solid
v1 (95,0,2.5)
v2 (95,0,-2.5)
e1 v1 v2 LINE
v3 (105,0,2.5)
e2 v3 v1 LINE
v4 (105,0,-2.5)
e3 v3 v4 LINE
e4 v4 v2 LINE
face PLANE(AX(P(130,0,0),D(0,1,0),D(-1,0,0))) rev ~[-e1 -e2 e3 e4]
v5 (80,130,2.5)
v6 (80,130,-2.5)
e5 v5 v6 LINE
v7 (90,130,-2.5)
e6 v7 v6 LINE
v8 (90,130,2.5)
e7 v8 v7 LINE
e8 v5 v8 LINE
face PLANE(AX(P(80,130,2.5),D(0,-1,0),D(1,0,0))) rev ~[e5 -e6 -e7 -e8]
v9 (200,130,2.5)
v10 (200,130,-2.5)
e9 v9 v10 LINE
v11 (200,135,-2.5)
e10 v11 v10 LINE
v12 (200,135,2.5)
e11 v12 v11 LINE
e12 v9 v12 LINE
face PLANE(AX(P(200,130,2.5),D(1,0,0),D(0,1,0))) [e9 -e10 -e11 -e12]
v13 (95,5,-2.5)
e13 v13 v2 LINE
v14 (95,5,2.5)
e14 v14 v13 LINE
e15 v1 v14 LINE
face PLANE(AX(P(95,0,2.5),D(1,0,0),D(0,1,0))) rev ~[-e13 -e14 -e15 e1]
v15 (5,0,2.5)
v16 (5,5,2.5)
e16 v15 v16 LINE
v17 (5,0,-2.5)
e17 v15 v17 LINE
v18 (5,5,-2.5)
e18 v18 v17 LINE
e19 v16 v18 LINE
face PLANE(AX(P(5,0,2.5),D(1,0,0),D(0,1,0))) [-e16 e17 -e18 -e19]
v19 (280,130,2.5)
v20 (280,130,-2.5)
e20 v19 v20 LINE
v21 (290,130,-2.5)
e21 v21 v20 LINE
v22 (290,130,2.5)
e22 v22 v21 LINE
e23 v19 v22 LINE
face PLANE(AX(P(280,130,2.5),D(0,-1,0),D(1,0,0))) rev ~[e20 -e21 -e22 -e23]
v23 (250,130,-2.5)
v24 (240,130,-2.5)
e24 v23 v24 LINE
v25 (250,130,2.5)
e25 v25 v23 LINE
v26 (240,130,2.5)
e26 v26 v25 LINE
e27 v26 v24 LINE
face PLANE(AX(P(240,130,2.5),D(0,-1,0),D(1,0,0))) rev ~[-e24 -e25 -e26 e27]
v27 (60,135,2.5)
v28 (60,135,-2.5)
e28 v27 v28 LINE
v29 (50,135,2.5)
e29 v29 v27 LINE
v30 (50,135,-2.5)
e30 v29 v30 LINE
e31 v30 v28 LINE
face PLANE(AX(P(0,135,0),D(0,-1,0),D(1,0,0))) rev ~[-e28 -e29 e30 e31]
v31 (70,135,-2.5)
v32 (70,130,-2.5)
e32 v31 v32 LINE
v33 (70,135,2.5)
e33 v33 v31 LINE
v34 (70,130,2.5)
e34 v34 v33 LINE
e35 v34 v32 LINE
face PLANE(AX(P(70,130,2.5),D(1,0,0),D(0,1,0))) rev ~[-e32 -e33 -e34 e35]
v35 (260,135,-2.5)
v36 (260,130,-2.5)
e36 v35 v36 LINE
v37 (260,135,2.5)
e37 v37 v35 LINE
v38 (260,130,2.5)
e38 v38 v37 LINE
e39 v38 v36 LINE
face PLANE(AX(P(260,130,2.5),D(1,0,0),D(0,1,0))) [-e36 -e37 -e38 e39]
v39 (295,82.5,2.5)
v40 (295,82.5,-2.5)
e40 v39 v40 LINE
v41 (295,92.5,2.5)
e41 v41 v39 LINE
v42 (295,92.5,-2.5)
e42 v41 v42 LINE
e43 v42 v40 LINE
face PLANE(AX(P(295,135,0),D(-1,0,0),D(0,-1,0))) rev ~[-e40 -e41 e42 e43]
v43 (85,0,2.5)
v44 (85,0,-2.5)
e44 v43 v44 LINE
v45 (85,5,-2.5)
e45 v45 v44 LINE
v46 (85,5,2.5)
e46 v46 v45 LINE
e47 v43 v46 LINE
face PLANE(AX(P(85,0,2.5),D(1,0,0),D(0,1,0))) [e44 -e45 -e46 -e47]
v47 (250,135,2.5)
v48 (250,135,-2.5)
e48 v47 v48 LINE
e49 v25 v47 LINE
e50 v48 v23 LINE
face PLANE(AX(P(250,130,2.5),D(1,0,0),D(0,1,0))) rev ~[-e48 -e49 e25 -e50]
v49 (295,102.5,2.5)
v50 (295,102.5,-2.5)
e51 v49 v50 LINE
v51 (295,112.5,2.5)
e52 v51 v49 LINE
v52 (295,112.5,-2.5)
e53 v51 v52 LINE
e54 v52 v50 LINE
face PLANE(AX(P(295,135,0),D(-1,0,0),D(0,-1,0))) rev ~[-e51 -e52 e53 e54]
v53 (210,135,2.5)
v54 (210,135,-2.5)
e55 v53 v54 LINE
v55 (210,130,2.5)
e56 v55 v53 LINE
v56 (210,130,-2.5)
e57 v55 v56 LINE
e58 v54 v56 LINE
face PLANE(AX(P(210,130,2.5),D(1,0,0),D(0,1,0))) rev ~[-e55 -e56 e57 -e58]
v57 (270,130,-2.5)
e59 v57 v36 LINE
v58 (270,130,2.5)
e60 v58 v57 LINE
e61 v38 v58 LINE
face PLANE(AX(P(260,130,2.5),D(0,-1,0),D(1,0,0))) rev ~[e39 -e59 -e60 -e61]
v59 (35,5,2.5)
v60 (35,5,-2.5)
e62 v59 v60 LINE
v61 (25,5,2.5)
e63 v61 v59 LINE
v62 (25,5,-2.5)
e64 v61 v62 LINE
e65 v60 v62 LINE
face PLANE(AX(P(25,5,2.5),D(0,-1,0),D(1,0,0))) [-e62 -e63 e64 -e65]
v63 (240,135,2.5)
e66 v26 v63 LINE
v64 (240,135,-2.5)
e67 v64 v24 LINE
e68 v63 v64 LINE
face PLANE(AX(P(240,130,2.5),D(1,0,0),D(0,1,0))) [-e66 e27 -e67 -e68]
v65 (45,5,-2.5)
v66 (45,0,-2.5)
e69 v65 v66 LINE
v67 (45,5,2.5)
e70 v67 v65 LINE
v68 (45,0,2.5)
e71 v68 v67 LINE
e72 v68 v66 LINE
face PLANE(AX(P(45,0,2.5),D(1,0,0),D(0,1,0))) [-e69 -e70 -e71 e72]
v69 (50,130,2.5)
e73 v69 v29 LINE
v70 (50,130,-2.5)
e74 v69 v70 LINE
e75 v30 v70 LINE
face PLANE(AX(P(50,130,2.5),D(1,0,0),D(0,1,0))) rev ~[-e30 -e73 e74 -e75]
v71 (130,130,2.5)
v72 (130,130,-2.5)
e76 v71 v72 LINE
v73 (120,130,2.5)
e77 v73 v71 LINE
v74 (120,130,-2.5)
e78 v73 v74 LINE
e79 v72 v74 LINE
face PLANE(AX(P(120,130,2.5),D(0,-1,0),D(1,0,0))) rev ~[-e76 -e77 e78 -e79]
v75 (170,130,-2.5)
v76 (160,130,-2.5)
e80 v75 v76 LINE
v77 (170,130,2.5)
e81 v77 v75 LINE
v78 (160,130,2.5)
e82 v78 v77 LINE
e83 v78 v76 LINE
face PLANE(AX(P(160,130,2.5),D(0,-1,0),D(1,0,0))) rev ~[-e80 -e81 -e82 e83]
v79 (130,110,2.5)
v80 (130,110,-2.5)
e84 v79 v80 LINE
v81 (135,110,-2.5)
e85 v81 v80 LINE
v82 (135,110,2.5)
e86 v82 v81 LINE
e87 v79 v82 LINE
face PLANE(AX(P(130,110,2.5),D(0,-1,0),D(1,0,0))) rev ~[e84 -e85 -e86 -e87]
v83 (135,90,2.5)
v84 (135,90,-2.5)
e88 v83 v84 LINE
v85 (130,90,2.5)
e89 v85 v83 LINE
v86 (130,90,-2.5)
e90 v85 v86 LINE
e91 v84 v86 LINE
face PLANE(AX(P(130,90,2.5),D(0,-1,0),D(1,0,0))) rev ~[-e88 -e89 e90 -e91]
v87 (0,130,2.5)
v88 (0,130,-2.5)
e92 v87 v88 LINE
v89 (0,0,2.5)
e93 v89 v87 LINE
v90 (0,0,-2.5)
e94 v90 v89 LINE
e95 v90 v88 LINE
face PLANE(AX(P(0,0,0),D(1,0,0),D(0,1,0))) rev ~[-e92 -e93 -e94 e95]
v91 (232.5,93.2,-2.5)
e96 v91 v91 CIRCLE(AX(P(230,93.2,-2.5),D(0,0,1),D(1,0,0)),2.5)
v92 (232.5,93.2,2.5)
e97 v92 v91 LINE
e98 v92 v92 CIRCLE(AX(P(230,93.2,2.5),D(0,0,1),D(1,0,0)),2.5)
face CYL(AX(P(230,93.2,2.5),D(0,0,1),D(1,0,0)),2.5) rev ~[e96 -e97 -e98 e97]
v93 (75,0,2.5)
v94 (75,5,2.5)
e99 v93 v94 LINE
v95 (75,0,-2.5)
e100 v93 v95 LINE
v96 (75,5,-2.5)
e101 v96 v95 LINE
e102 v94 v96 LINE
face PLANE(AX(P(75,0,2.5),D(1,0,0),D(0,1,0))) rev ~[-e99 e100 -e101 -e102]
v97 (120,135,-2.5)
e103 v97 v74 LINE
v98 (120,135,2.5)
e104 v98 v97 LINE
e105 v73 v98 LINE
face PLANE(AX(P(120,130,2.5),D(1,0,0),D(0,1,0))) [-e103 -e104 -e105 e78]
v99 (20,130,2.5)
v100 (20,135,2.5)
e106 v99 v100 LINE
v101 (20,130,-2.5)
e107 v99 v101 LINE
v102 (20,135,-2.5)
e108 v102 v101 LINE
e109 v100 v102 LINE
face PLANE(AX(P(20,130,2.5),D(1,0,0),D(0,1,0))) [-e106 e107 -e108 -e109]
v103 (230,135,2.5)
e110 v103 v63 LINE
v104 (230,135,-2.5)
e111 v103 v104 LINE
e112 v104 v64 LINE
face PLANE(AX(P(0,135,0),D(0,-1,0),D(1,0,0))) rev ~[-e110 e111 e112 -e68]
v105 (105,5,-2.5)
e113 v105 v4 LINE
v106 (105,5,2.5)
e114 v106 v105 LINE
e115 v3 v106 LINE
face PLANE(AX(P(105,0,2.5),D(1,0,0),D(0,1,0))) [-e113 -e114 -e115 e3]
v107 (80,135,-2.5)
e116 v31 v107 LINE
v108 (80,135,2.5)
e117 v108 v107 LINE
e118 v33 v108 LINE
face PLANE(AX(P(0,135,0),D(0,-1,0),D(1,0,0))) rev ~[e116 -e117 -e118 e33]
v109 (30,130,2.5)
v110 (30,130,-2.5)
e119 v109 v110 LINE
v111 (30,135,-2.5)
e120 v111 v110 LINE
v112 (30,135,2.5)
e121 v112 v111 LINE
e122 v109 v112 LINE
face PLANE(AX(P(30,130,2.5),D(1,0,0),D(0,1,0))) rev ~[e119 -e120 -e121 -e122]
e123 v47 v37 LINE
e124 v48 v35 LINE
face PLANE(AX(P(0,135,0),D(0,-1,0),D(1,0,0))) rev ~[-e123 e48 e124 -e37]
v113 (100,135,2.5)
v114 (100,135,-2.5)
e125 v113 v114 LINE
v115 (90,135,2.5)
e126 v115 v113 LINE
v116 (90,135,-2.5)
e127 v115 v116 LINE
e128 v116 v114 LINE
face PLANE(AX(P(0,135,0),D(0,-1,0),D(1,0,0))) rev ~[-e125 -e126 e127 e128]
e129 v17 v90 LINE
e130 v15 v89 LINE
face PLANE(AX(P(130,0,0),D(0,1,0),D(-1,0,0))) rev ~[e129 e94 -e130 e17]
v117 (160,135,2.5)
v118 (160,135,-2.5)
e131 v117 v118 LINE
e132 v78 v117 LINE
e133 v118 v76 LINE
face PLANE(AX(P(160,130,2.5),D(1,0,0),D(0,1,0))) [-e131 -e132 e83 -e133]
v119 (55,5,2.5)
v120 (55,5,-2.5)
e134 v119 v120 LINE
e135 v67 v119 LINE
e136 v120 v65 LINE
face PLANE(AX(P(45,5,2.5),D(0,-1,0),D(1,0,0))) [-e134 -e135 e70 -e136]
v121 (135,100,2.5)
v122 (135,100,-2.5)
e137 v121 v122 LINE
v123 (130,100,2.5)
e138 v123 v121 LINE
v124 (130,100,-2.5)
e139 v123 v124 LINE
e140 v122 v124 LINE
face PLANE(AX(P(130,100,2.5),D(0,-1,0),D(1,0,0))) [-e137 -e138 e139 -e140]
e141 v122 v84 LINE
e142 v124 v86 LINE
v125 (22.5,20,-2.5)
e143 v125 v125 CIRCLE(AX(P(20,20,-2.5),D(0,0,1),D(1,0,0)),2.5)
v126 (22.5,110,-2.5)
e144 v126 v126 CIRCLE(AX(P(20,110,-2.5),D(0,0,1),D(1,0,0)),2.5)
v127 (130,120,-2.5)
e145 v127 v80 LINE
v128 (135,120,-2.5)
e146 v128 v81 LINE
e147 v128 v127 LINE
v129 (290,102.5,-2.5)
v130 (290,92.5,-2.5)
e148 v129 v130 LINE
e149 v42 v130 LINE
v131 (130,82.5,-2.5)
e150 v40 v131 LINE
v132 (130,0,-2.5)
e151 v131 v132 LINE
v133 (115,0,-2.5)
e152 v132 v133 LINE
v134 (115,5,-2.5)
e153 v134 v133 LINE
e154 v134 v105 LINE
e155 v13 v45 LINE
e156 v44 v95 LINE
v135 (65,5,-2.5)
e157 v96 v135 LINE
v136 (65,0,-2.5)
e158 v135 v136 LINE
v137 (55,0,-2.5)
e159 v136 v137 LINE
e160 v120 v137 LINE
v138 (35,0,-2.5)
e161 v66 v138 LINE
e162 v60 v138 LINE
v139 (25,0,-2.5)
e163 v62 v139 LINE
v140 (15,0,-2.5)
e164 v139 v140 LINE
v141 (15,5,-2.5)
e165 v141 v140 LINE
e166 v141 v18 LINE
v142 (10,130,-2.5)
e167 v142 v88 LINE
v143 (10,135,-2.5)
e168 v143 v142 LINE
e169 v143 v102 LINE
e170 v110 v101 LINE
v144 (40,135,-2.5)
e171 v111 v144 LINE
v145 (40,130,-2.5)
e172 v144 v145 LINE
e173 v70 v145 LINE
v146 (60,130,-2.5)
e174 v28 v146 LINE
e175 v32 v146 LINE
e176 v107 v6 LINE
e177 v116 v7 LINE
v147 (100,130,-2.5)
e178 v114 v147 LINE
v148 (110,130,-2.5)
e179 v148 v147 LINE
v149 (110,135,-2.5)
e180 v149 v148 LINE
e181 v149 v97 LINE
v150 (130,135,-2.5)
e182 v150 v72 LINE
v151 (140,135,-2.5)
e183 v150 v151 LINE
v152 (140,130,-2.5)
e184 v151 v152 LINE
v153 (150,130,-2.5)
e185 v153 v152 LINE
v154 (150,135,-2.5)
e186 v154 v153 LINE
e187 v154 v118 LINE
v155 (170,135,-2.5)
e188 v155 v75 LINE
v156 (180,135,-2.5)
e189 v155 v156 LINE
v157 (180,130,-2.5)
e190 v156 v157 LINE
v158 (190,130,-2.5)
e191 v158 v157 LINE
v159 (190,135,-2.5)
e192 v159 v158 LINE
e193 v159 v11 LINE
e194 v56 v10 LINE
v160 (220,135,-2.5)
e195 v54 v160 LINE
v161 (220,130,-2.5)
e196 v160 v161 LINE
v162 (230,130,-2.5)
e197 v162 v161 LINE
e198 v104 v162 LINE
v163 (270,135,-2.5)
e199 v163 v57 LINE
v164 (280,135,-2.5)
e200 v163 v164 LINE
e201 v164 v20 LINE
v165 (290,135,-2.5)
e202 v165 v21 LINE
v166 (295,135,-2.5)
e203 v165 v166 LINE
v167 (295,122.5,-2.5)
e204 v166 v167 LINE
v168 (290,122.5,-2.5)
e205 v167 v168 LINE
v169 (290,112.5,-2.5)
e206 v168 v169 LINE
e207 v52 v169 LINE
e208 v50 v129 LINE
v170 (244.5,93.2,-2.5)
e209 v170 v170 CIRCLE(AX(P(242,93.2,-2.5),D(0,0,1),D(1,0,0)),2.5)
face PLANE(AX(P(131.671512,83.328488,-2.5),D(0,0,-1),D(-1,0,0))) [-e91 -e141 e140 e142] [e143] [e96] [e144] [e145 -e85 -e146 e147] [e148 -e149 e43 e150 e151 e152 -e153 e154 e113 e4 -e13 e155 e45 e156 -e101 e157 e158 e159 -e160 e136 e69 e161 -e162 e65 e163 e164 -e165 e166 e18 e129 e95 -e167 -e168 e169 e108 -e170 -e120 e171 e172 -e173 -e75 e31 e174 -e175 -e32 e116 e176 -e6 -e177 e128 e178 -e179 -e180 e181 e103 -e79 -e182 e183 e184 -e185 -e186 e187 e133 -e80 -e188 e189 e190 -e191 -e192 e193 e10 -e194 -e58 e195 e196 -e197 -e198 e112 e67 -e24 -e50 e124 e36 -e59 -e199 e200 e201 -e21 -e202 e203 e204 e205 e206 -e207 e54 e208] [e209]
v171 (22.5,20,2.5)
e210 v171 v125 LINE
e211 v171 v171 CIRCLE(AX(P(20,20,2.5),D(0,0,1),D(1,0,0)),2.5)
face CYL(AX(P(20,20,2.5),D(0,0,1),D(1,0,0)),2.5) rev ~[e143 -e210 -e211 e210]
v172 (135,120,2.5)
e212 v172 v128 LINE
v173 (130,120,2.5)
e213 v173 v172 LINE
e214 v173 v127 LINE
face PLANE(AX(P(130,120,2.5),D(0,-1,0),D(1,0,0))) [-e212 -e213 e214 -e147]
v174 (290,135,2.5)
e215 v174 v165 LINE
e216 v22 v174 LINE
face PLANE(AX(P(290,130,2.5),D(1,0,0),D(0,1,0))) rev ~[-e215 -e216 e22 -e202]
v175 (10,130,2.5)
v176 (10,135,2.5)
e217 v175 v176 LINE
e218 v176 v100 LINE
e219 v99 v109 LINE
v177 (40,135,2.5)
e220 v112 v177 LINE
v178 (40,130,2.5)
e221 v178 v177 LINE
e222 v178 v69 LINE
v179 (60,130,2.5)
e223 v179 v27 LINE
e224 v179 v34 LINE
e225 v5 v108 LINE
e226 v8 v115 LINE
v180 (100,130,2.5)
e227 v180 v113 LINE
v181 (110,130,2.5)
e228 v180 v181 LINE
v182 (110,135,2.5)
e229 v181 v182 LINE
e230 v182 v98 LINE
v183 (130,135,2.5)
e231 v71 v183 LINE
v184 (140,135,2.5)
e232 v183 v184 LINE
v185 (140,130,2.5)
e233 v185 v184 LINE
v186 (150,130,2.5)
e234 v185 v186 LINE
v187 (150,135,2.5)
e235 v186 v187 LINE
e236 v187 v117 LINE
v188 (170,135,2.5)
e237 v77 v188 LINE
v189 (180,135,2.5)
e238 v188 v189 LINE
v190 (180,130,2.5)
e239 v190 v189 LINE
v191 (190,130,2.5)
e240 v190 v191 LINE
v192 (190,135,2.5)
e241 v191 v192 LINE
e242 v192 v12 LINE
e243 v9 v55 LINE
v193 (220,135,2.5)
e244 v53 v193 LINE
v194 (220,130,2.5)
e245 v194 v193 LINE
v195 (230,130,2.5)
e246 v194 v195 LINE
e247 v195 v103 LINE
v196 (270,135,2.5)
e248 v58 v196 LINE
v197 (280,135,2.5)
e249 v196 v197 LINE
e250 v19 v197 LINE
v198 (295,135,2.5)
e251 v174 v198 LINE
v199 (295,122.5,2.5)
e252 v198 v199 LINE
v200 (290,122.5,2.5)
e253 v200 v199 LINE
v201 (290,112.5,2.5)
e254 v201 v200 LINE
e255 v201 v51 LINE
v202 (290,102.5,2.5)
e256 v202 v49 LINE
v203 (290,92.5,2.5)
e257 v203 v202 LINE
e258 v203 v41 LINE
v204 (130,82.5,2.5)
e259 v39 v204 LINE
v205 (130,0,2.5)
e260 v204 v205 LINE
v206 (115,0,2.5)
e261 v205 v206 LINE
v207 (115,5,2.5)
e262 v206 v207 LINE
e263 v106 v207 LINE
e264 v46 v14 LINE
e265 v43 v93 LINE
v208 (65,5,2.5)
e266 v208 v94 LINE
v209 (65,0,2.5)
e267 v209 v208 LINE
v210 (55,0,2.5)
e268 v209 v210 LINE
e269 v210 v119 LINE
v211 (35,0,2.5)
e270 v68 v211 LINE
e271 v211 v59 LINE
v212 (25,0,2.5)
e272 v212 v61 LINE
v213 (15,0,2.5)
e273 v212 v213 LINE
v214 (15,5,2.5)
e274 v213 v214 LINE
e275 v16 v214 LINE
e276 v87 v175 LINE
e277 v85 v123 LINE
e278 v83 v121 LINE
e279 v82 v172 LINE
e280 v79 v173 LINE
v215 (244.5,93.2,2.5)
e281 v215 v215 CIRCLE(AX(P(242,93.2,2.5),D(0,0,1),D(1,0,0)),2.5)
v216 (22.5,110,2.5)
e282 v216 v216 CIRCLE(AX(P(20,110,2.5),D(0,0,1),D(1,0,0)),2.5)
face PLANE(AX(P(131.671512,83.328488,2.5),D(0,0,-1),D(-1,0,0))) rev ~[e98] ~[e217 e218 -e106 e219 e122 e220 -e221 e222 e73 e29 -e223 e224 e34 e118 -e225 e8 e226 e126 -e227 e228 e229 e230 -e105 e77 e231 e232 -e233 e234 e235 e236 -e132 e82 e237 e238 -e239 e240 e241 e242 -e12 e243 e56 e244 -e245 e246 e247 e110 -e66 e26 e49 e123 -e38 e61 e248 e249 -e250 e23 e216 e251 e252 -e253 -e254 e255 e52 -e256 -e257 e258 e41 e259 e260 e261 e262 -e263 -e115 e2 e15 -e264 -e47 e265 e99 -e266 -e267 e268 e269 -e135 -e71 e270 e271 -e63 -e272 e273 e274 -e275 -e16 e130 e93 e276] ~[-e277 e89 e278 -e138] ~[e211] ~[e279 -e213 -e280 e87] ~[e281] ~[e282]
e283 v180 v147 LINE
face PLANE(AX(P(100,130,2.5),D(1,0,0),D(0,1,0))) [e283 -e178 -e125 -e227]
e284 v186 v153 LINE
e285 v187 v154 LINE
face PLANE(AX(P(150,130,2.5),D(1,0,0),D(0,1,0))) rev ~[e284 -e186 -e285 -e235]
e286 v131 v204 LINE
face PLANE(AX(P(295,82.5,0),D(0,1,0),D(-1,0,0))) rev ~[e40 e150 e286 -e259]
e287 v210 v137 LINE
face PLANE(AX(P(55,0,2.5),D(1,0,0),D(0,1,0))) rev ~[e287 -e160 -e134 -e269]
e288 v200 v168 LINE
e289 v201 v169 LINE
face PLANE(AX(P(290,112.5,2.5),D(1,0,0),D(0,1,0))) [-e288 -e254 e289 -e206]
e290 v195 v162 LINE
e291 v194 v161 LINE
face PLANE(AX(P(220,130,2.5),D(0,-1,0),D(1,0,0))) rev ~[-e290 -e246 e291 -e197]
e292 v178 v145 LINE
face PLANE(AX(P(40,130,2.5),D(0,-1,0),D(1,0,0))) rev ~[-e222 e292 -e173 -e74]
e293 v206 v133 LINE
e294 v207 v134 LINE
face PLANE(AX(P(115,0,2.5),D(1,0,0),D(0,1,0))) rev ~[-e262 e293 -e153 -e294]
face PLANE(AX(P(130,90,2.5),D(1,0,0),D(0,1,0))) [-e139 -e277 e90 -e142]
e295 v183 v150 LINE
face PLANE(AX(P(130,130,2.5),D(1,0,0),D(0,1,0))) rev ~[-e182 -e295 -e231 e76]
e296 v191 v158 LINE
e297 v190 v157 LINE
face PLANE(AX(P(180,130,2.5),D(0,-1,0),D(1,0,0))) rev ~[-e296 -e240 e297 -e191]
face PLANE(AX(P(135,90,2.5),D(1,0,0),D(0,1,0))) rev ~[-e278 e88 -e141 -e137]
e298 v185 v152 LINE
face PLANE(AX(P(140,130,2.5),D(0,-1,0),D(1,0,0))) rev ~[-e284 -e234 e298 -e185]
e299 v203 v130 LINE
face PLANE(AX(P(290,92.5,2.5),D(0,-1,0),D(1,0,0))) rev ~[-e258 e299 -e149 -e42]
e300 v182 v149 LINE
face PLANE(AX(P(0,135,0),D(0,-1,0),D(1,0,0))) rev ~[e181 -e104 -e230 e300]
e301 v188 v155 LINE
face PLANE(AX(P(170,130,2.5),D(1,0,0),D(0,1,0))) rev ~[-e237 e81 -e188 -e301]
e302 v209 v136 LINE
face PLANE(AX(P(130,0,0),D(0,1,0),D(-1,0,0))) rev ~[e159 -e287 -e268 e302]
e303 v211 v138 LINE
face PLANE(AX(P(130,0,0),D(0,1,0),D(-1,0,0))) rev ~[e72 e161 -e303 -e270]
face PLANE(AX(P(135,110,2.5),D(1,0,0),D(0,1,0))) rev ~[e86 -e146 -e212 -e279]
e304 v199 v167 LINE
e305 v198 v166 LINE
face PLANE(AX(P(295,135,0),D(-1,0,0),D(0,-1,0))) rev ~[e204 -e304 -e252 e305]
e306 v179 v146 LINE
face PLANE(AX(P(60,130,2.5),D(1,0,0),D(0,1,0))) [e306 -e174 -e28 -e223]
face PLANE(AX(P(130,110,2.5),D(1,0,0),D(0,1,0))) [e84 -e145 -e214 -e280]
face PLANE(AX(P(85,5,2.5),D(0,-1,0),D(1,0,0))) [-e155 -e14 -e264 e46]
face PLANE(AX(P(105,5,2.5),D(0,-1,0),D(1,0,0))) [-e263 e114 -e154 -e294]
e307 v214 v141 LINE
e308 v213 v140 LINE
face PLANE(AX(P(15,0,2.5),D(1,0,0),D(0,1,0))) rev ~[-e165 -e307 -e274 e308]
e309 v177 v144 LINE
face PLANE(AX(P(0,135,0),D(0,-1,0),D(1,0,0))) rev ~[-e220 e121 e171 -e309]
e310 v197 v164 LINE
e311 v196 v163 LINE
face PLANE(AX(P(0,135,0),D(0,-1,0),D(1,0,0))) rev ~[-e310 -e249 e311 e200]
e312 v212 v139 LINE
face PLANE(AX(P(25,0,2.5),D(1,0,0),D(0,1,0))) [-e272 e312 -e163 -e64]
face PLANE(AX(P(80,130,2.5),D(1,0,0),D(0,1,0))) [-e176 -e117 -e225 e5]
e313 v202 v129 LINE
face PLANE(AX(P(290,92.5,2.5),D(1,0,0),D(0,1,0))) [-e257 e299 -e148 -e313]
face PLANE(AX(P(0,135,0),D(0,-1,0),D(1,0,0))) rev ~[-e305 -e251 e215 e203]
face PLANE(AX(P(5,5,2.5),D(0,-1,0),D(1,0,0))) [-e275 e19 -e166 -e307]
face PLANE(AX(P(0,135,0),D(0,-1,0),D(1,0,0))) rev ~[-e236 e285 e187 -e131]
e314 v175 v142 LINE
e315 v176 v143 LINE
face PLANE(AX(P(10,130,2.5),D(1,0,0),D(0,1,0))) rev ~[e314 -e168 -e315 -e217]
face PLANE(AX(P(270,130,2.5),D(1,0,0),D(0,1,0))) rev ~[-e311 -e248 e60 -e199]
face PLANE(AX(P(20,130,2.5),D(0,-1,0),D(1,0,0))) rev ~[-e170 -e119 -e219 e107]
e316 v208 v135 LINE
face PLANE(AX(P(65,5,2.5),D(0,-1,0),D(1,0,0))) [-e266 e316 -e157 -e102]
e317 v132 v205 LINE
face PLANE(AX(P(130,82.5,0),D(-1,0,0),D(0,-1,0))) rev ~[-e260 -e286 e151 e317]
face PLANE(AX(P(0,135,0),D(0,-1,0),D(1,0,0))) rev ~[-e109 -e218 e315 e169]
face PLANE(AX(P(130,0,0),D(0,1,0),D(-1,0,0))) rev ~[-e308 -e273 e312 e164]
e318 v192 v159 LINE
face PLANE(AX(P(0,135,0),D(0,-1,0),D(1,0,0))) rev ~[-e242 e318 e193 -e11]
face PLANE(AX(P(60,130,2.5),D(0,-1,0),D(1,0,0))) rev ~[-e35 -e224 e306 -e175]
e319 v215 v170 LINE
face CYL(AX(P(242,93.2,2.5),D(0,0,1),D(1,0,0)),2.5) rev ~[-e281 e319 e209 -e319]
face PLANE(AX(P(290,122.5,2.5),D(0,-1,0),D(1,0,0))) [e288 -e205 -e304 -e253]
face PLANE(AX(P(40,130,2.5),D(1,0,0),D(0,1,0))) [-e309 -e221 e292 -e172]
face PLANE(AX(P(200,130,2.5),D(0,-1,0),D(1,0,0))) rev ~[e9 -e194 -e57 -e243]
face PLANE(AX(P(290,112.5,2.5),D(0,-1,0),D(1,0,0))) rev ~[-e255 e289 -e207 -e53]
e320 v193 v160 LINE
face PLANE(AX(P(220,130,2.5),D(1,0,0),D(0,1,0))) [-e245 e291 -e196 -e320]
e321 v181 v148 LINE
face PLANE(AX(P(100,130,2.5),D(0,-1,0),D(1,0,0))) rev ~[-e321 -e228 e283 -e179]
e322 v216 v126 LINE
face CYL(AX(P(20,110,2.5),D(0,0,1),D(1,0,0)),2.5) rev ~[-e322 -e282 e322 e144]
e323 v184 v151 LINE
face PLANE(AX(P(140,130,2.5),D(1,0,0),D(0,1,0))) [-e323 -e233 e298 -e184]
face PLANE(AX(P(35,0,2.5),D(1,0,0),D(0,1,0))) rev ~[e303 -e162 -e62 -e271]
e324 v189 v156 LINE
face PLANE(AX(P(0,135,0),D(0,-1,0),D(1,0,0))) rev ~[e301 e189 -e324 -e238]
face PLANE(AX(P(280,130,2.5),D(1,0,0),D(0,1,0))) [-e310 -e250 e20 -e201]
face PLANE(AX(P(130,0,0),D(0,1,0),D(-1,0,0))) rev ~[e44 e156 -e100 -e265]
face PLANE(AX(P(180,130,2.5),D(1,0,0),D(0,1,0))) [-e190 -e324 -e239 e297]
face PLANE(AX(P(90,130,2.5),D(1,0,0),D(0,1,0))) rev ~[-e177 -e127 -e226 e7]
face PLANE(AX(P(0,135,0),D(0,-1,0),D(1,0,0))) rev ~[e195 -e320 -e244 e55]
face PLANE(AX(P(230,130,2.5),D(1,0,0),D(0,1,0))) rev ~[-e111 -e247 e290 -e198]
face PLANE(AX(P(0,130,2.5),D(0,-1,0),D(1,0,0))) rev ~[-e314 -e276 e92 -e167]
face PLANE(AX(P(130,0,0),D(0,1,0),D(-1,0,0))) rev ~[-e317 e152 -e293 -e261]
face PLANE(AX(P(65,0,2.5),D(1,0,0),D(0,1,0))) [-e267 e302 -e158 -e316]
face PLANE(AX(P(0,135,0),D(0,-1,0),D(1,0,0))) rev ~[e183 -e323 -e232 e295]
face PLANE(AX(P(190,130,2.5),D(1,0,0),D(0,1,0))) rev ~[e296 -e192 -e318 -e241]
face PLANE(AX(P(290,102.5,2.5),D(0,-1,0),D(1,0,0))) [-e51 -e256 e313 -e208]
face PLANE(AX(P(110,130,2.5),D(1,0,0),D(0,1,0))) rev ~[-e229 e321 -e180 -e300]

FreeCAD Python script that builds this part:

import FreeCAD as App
import Part
import Sketcher
Q = App.Units.Quantity

doc = App.newDocument("Part")
body = doc.addObject("PartDesign::Body", "Body")

# Sketch on XY plane
sketch1 = body.newObject("Sketcher::SketchObject", "Sketch")
sketch1.AttachmentSupport = (doc.getObject("XY_Plane"), [""])
sketch1.MapMode = "FlatFace"
sketch1.addGeometry([
    Part.LineSegment(App.Vector(0, 135, 0), App.Vector(0, 0, 0)),  # 0
    Part.LineSegment(App.Vector(0, 0, 0), App.Vector(130, 0, 0)),  # 1
    Part.LineSegment(App.Vector(130, 0, 0), App.Vector(130, 82, 0)),  # 2
    Part.LineSegment(App.Vector(130, 82, 0), App.Vector(295, 82, 0)),  # 3
    Part.LineSegment(App.Vector(295, 82, 0), App.Vector(295, 135, 0)),  # 4
    Part.LineSegment(App.Vector(295, 135, 0), App.Vector(0, 135, 0)),  # 5
], False)
sketch1.addConstraint([
    Sketcher.Constraint("Coincident", 0, 2, 1, 1),
    Sketcher.Constraint("Coincident", 1, 2, 2, 1),
    Sketcher.Constraint("Coincident", 2, 2, 3, 1),
    Sketcher.Constraint("Coincident", 3, 2, 4, 1),
    Sketcher.Constraint("Coincident", 4, 2, 5, 1),
    Sketcher.Constraint("Coincident", 5, 2, 0, 1),
    Sketcher.Constraint("Vertical", 0),
    Sketcher.Constraint("Horizontal", 1),
    Sketcher.Constraint("Vertical", 2),
    Sketcher.Constraint("Horizontal", 3),
    Sketcher.Constraint("Vertical", 4),
    Sketcher.Constraint("Horizontal", 5),
    Sketcher.Constraint("Coincident", 0, 2, -1, 1),
    Sketcher.Constraint("DistanceX", 1, 1, 1, 2, Q("130 mm")),
    Sketcher.Constraint("DistanceX", 3, 1, 3, 2, Q("165 mm")),
    Sketcher.Constraint("DistanceY", 0, 2, 0, 1, Q("135 mm")),
    Sketcher.Constraint("DistanceY", 2, 1, 2, 2, Q("82.5 mm")),
])
pad1 = body.newObject("PartDesign::Pad", "Pad")
pad1.Profile = sketch1
pad1.Length = 5
pad1.Midplane = True

# Sketch on XY plane
sketch2 = body.newObject("Sketcher::SketchObject", "Sketch001")
sketch2.AttachmentSupport = (doc.getObject("XY_Plane"), [""])
sketch2.MapMode = "FlatFace"
sketch2.AttachmentOffset = App.Placement(App.Vector(0, 0, 2.5), App.Rotation())
sketch2.addGeometry([
    Part.LineSegment(App.Vector(290, 102, 0), App.Vector(290, 92, 0)),  # 0
    Part.LineSegment(App.Vector(290, 92, 0), App.Vector(295, 92, 0)),  # 1
    Part.LineSegment(App.Vector(295, 92, 0), App.Vector(295, 102, 0)),  # 2
    Part.LineSegment(App.Vector(295, 102, 0), App.Vector(290, 102, 0)),  # 3
    Part.LineSegment(App.Vector(290, 122, 0), App.Vector(290, 112, 0)),  # 4
    Part.LineSegment(App.Vector(290, 112, 0), App.Vector(295, 112, 0)),  # 5
    Part.LineSegment(App.Vector(295, 112, 0), App.Vector(295, 122, 0)),  # 6
    Part.LineSegment(App.Vector(295, 122, 0), App.Vector(290, 122, 0)),  # 7
], False)
sketch2.addConstraint([
    Sketcher.Constraint("Coincident", 0, 2, 1, 1),
    Sketcher.Constraint("Coincident", 1, 2, 2, 1),
    Sketcher.Constraint("Coincident", 2, 2, 3, 1),
    Sketcher.Constraint("Coincident", 3, 2, 0, 1),
    Sketcher.Constraint("Coincident", 4, 2, 5, 1),
    Sketcher.Constraint("Coincident", 5, 2, 6, 1),
    Sketcher.Constraint("Coincident", 6, 2, 7, 1),
    Sketcher.Constraint("Coincident", 7, 2, 4, 1),
    Sketcher.Constraint("Vertical", 0),
    Sketcher.Constraint("Horizontal", 1),
    Sketcher.Constraint("Vertical", 2),
    Sketcher.Constraint("Horizontal", 3),
    Sketcher.Constraint("Vertical", 4),
    Sketcher.Constraint("Horizontal", 5),
    Sketcher.Constraint("Vertical", 6),
    Sketcher.Constraint("Horizontal", 7),
    Sketcher.Constraint("Vertical", 3, 2, 4, 2),
    Sketcher.Constraint("Vertical", 2, 2, 5, 2),
    Sketcher.Constraint("Equal", 2, 4),
    Sketcher.Constraint("DistanceX", 1, 1, 1, 2, Q("5 mm")),
    Sketcher.Constraint("DistanceY", 0, 2, 0, 1, Q("10 mm")),
    Sketcher.Constraint("DistanceX", -1, 1, 0, 2, Q("290 mm")),
    Sketcher.Constraint("DistanceY", 3, 2, 4, 2, Q("10 mm")),
    Sketcher.Constraint("DistanceY", -1, 1, 0, 2, Q("92.5 mm")),
])
pocket1 = body.newObject("PartDesign::Pocket", "Pocket")
pocket1.Profile = sketch2
pocket1.Type = "ThroughAll"

# Sketch on XY plane
sketch3 = body.newObject("Sketcher::SketchObject", "Sketch002")
sketch3.AttachmentSupport = (doc.getObject("XY_Plane"), [""])
sketch3.MapMode = "FlatFace"
sketch3.AttachmentOffset = App.Placement(App.Vector(0, 0, 2.5), App.Rotation())
sketch3.addGeometry([
    Part.LineSegment(App.Vector(0, 135, 0), App.Vector(0, 130, 0)),  # 0
    Part.LineSegment(App.Vector(0, 130, 0), App.Vector(10, 130, 0)),  # 1
    Part.LineSegment(App.Vector(10, 130, 0), App.Vector(10, 135, 0)),  # 2
    Part.LineSegment(App.Vector(10, 135, 0), App.Vector(0, 135, 0)),  # 3
    Part.LineSegment(App.Vector(20, 135, 0), App.Vector(20, 130, 0)),  # 4
    Part.LineSegment(App.Vector(20, 130, 0), App.Vector(30, 130, 0)),  # 5
    Part.LineSegment(App.Vector(30, 130, 0), App.Vector(30, 135, 0)),  # 6
    Part.LineSegment(App.Vector(30, 135, 0), App.Vector(20, 135, 0)),  # 7
    Part.LineSegment(App.Vector(40, 135, 0), App.Vector(40, 130, 0)),  # 8
    Part.LineSegment(App.Vector(40, 130, 0), App.Vector(50, 130, 0)),  # 9
    Part.LineSegment(App.Vector(50, 130, 0), App.Vector(50, 135, 0)),  # 10
    Part.LineSegment(App.Vector(50, 135, 0), App.Vector(40, 135, 0)),  # 11
    Part.LineSegment(App.Vector(60, 135, 0), App.Vector(60, 130, 0)),  # 12
    Part.LineSegment(App.Vector(60, 130, 0), App.Vector(70, 130, 0)),  # 13
    Part.LineSegment(App.Vector(70, 130, 0), App.Vector(70, 135, 0)),  # 14
    Part.LineSegment(App.Vector(70, 135, 0), App.Vector(60, 135, 0)),  # 15
    Part.LineSegment(App.Vector(80, 135, 0), App.Vector(80, 130, 0)),  # 16
    Part.LineSegment(App.Vector(80, 130, 0), App.Vector(90, 130, 0)),  # 17
    Part.LineSegment(App.Vector(90, 130, 0), App.Vector(90, 135, 0)),  # 18
    Part.LineSegment(App.Vector(90, 135, 0), App.Vector(80, 135, 0)),  # 19
    Part.LineSegment(App.Vector(100, 135, 0), App.Vector(100, 130, 0)),  # 20
    Part.LineSegment(App.Vector(100, 130, 0), App.Vector(110, 130, 0)),  # 21
    Part.LineSegment(App.Vector(110, 130, 0), App.Vector(110, 135, 0)),  # 22
    Part.LineSegment(App.Vector(110, 135, 0), App.Vector(100, 135, 0)),  # 23
    Part.LineSegment(App.Vector(120, 135, 0), App.Vector(120, 130, 0)),  # 24
    Part.LineSegment(App.Vector(120, 130, 0), App.Vector(130, 130, 0)),  # 25
    Part.LineSegment(App.Vector(130, 130, 0), App.Vector(130, 135, 0)),  # 26
    Part.LineSegment(App.Vector(130, 135, 0), App.Vector(120, 135, 0)),  # 27
    Part.LineSegment(App.Vector(140, 135, 0), App.Vector(140, 130, 0)),  # 28
    Part.LineSegment(App.Vector(140, 130, 0), App.Vector(150, 130, 0)),  # 29
    Part.LineSegment(App.Vector(150, 130, 0), App.Vector(150, 135, 0)),  # 30
    Part.LineSegment(App.Vector(150, 135, 0), App.Vector(140, 135, 0)),  # 31
    Part.LineSegment(App.Vector(160, 135, 0), App.Vector(160, 130, 0)),  # 32
    Part.LineSegment(App.Vector(160, 130, 0), App.Vector(170, 130, 0)),  # 33
    Part.LineSegment(App.Vector(170, 130, 0), App.Vector(170, 135, 0)),  # 34
    Part.LineSegment(App.Vector(170, 135, 0), App.Vector(160, 135, 0)),  # 35
    Part.LineSegment(App.Vector(180, 135, 0), App.Vector(180, 130, 0)),  # 36
    Part.LineSegment(App.Vector(180, 130, 0), App.Vector(190, 130, 0)),  # 37
    Part.LineSegment(App.Vector(190, 130, 0), App.Vector(190, 135, 0)),  # 38
    Part.LineSegment(App.Vector(190, 135, 0), App.Vector(180, 135, 0)),  # 39
    Part.LineSegment(App.Vector(200, 135, 0), App.Vector(200, 130, 0)),  # 40
    Part.LineSegment(App.Vector(200, 130, 0), App.Vector(210, 130, 0)),  # 41
    Part.LineSegment(App.Vector(210, 130, 0), App.Vector(210, 135, 0)),  # 42
    Part.LineSegment(App.Vector(210, 135, 0), App.Vector(200, 135, 0)),  # 43
    Part.LineSegment(App.Vector(220, 135, 0), App.Vector(220, 130, 0)),  # 44
    Part.LineSegment(App.Vector(220, 130, 0), App.Vector(230, 130, 0)),  # 45
    Part.LineSegment(App.Vector(230, 130, 0), App.Vector(230, 135, 0)),  # 46
    Part.LineSegment(App.Vector(230, 135, 0), App.Vector(220, 135, 0)),  # 47
    Part.LineSegment(App.Vector(240, 135, 0), App.Vector(240, 130, 0)),  # 48
    Part.LineSegment(App.Vector(240, 130, 0), App.Vector(250, 130, 0)),  # 49
    Part.LineSegment(App.Vector(250, 130, 0), App.Vector(250, 135, 0)),  # 50
    Part.LineSegment(App.Vector(250, 135, 0), App.Vector(240, 135, 0)),  # 51
    Part.LineSegment(App.Vector(260, 135, 0), App.Vector(260, 130, 0)),  # 52
    Part.LineSegment(App.Vector(260, 130, 0), App.Vector(270, 130, 0)),  # 53
    Part.LineSegment(App.Vector(270, 130, 0), App.Vector(270, 135, 0)),  # 54
    Part.LineSegment(App.Vector(270, 135, 0), App.Vector(260, 135, 0)),  # 55
    Part.LineSegment(App.Vector(280, 135, 0), App.Vector(280, 130, 0)),  # 56
    Part.LineSegment(App.Vector(280, 130, 0), App.Vector(290, 130, 0)),  # 57
    Part.LineSegment(App.Vector(290, 130, 0), App.Vector(290, 135, 0)),  # 58
    Part.LineSegment(App.Vector(290, 135, 0), App.Vector(280, 135, 0)),  # 59
], False)
sketch3.addConstraint([
    Sketcher.Constraint("Coincident", 0, 2, 1, 1),
    Sketcher.Constraint("Coincident", 1, 2, 2, 1),
    Sketcher.Constraint("Coincident", 2, 2, 3, 1),
    Sketcher.Constraint("Coincident", 3, 2, 0, 1),
    Sketcher.Constraint("Coincident", 4, 2, 5, 1),
    Sketcher.Constraint("Coincident", 5, 2, 6, 1),
    Sketcher.Constraint("Coincident", 6, 2, 7, 1),
    Sketcher.Constraint("Coincident", 7, 2, 4, 1),
    Sketcher.Constraint("Coincident", 8, 2, 9, 1),
    Sketcher.Constraint("Coincident", 9, 2, 10, 1),
    Sketcher.Constraint("Coincident", 10, 2, 11, 1),
    Sketcher.Constraint("Coincident", 11, 2, 8, 1),
    Sketcher.Constraint("Coincident", 12, 2, 13, 1),
    Sketcher.Constraint("Coincident", 13, 2, 14, 1),
    Sketcher.Constraint("Coincident", 14, 2, 15, 1),
    Sketcher.Constraint("Coincident", 15, 2, 12, 1),
    Sketcher.Constraint("Coincident", 16, 2, 17, 1),
    Sketcher.Constraint("Coincident", 17, 2, 18, 1),
    Sketcher.Constraint("Coincident", 18, 2, 19, 1),
    Sketcher.Constraint("Coincident", 19, 2, 16, 1),
    Sketcher.Constraint("Coincident", 20, 2, 21, 1),
    Sketcher.Constraint("Coincident", 21, 2, 22, 1),
    Sketcher.Constraint("Coincident", 22, 2, 23, 1),
    Sketcher.Constraint("Coincident", 23, 2, 20, 1),
    Sketcher.Constraint("Coincident", 24, 2, 25, 1),
    Sketcher.Constraint("Coincident", 25, 2, 26, 1),
    Sketcher.Constraint("Coincident", 26, 2, 27, 1),
    Sketcher.Constraint("Coincident", 27, 2, 24, 1),
    Sketcher.Constraint("Coincident", 28, 2, 29, 1),
    Sketcher.Constraint("Coincident", 29, 2, 30, 1),
    Sketcher.Constraint("Coincident", 30, 2, 31, 1),
    Sketcher.Constraint("Coincident", 31, 2, 28, 1),
    Sketcher.Constraint("Coincident", 32, 2, 33, 1),
    Sketcher.Constraint("Coincident", 33, 2, 34, 1),
    Sketcher.Constraint("Coincident", 34, 2, 35, 1),
    Sketcher.Constraint("Coincident", 35, 2, 32, 1),
    Sketcher.Constraint("Coincident", 36, 2, 37, 1),
    Sketcher.Constraint("Coincident", 37, 2, 38, 1),
    Sketcher.Constraint("Coincident", 38, 2, 39, 1),
    Sketcher.Constraint("Coincident", 39, 2, 36, 1),
    Sketcher.Constraint("Coincident", 40, 2, 41, 1),
    Sketcher.Constraint("Coincident", 41, 2, 42, 1),
    Sketcher.Constraint("Coincident", 42, 2, 43, 1),
    Sketcher.Constraint("Coincident", 43, 2, 40, 1),
    Sketcher.Constraint("Coincident", 44, 2, 45, 1),
    Sketcher.Constraint("Coincident", 45, 2, 46, 1),
    Sketcher.Constraint("Coincident", 46, 2, 47, 1),
    Sketcher.Constraint("Coincident", 47, 2, 44, 1),
    Sketcher.Constraint("Coincident", 48, 2, 49, 1),
    Sketcher.Constraint("Coincident", 49, 2, 50, 1),
    Sketcher.Constraint("Coincident", 50, 2, 51, 1),
    Sketcher.Constraint("Coincident", 51, 2, 48, 1),
    Sketcher.Constraint("Coincident", 52, 2, 53, 1),
    Sketcher.Constraint("Coincident", 53, 2, 54, 1),
    Sketcher.Constraint("Coincident", 54, 2, 55, 1),
    Sketcher.Constraint("Coincident", 55, 2, 52, 1),
    Sketcher.Constraint("Coincident", 56, 2, 57, 1),
    Sketcher.Constraint("Coincident", 57, 2, 58, 1),
    Sketcher.Constraint("Coincident", 58, 2, 59, 1),
    Sketcher.Constraint("Coincident", 59, 2, 56, 1),
    Sketcher.Constraint("Vertical", 0),
    Sketcher.Constraint("Horizontal", 1),
    Sketcher.Constraint("Vertical", 2),
    Sketcher.Constraint("Horizontal", 3),
    Sketcher.Constraint("Vertical", 4),
    Sketcher.Constraint("Horizontal", 5),
    Sketcher.Constraint("Vertical", 6),
    Sketcher.Constraint("Horizontal", 7),
    Sketcher.Constraint("Vertical", 8),
    Sketcher.Constraint("Horizontal", 9),
    Sketcher.Constraint("Vertical", 10),
    Sketcher.Constraint("Horizontal", 11),
    Sketcher.Constraint("Vertical", 12),
    Sketcher.Constraint("Horizontal", 13),
    Sketcher.Constraint("Vertical", 14),
    Sketcher.Constraint("Horizontal", 15),
    Sketcher.Constraint("Vertical", 16),
    Sketcher.Constraint("Horizontal", 17),
    Sketcher.Constraint("Vertical", 18),
    Sketcher.Constraint("Horizontal", 19),
    Sketcher.Constraint("Vertical", 20),
    Sketcher.Constraint("Horizontal", 21),
    Sketcher.Constraint("Vertical", 22),
    Sketcher.Constraint("Horizontal", 23),
    Sketcher.Constraint("Vertical", 24),
    Sketcher.Constraint("Horizontal", 25),
    Sketcher.Constraint("Vertical", 26),
    Sketcher.Constraint("Horizontal", 27),
    Sketcher.Constraint("Vertical", 28),
    Sketcher.Constraint("Horizontal", 29),
    Sketcher.Constraint("Vertical", 30),
    Sketcher.Constraint("Horizontal", 31),
    Sketcher.Constraint("Vertical", 32),
    Sketcher.Constraint("Horizontal", 33),
    Sketcher.Constraint("Vertical", 34),
    Sketcher.Constraint("Horizontal", 35),
    Sketcher.Constraint("Vertical", 36),
    Sketcher.Constraint("Horizontal", 37),
    Sketcher.Constraint("Vertical", 38),
    Sketcher.Constraint("Horizontal", 39),
    Sketcher.Constraint("Vertical", 40),
    Sketcher.Constraint("Horizontal", 41),
    Sketcher.Constraint("Vertical", 42),
    Sketcher.Constraint("Horizontal", 43),
    Sketcher.Constraint("Vertical", 44),
    Sketcher.Constraint("Horizontal", 45),
    Sketcher.Constraint("Vertical", 46),
    Sketcher.Constraint("Horizontal", 47),
    Sketcher.Constraint("Vertical", 48),
    Sketcher.Constraint("Horizontal", 49),
    Sketcher.Constraint("Vertical", 50),
    Sketcher.Constraint("Horizontal", 51),
    Sketcher.Constraint("Vertical", 52),
    Sketcher.Constraint("Horizontal", 53),
    Sketcher.Constraint("Vertical", 54),
    Sketcher.Constraint("Horizontal", 55),
    Sketcher.Constraint("Vertical", 56),
    Sketcher.Constraint("Horizontal", 57),
    Sketcher.Constraint("Vertical", 58),
    Sketcher.Constraint("Horizontal", 59),
    Sketcher.Constraint("PointOnObject", 0, 2, -2),
    Sketcher.Constraint("Horizontal", 1, 2, 4, 2),
    Sketcher.Constraint("Horizontal", 3, 2, 6, 2),
    Sketcher.Constraint("Horizontal", 5, 2, 8, 2),
    Sketcher.Constraint("Horizontal", 7, 2, 10, 2),
    Sketcher.Constraint("Horizontal", 9, 2, 12, 2),
    Sketcher.Constraint("Horizontal", 11, 2, 14, 2),
    Sketcher.Constraint("Horizontal", 13, 2, 16, 2),
    Sketcher.Constraint("Horizontal", 15, 2, 18, 2),
    Sketcher.Constraint("Horizontal", 17, 2, 20, 2),
    Sketcher.Constraint("Horizontal", 19, 2, 22, 2),
    Sketcher.Constraint("Horizontal", 21, 2, 24, 2),
    Sketcher.Constraint("Horizontal", 23, 2, 26, 2),
    Sketcher.Constraint("Horizontal", 25, 2, 28, 2),
    Sketcher.Constraint("Horizontal", 27, 2, 30, 2),
    Sketcher.Constraint("Horizontal", 29, 2, 32, 2),
    Sketcher.Constraint("Horizontal", 31, 2, 34, 2),
    Sketcher.Constraint("Horizontal", 33, 2, 36, 2),
    Sketcher.Constraint("Horizontal", 35, 2, 38, 2),
    Sketcher.Constraint("Horizontal", 37, 2, 40, 2),
    Sketcher.Constraint("Horizontal", 39, 2, 42, 2),
    Sketcher.Constraint("Horizontal", 41, 2, 44, 2),
    Sketcher.Constraint("Horizontal", 43, 2, 46, 2),
    Sketcher.Constraint("Horizontal", 45, 2, 48, 2),
    Sketcher.Constraint("Horizontal", 47, 2, 50, 2),
    Sketcher.Constraint("Horizontal", 49, 2, 52, 2),
    Sketcher.Constraint("Horizontal", 51, 2, 54, 2),
    Sketcher.Constraint("Horizontal", 53, 2, 56, 2),
    Sketcher.Constraint("Horizontal", 55, 2, 58, 2),
    Sketcher.Constraint("Equal", 3, 5),
    Sketcher.Constraint("Equal", 7, 9),
    Sketcher.Constraint("Equal", 11, 13),
    Sketcher.Constraint("Equal", 15, 17),
    Sketcher.Constraint("Equal", 19, 21),
    Sketcher.Constraint("Equal", 23, 25),
    Sketcher.Constraint("Equal", 27, 29),
    Sketcher.Constraint("Equal", 31, 33),
    Sketcher.Constraint("Equal", 35, 37),
    Sketcher.Constraint("Equal", 39, 41),
    Sketcher.Constraint("Equal", 43, 45),
    Sketcher.Constraint("Equal", 47, 49),
    Sketcher.Constraint("Equal", 51, 53),
    Sketcher.Constraint("Equal", 55, 57),
    Sketcher.Constraint("DistanceX", 1, 1, 1, 2, Q("10 mm")),
    Sketcher.Constraint("DistanceY", 0, 2, 0, 1, Q("5 mm")),
    Sketcher.Constraint("DistanceY", -1, 1, 0, 2, Q("130 mm")),
    Sketcher.Constraint("DistanceX", -1, 1, 4, 2, Q("20 mm")),
    Sketcher.Constraint("DistanceX", -1, 1, 8, 2, Q("40 mm")),
    Sketcher.Constraint("DistanceX", -1, 1, 12, 2, Q("60 mm")),
    Sketcher.Constraint("DistanceX", -1, 1, 16, 2, Q("80 mm")),
    Sketcher.Constraint("DistanceX", -1, 1, 20, 2, Q("100 mm")),
    Sketcher.Constraint("DistanceX", -1, 1, 24, 2, Q("120 mm")),
    Sketcher.Constraint("DistanceX", -1, 1, 28, 2, Q("140 mm")),
    Sketcher.Constraint("DistanceX", -1, 1, 32, 2, Q("160 mm")),
    Sketcher.Constraint("DistanceX", -1, 1, 36, 2, Q("180 mm")),
    Sketcher.Constraint("DistanceX", -1, 1, 40, 2, Q("200 mm")),
    Sketcher.Constraint("DistanceX", -1, 1, 44, 2, Q("220 mm")),
    Sketcher.Constraint("DistanceX", -1, 1, 48, 2, Q("240 mm")),
    Sketcher.Constraint("DistanceX", -1, 1, 52, 2, Q("260 mm")),
    Sketcher.Constraint("DistanceX", -1, 1, 56, 2, Q("280 mm")),
])
pocket2 = body.newObject("PartDesign::Pocket", "Pocket001")
pocket2.Profile = sketch3
pocket2.Type = "ThroughAll"

# Sketch on XY plane
sketch4 = body.newObject("Sketcher::SketchObject", "Sketch003")
sketch4.AttachmentSupport = (doc.getObject("XY_Plane"), [""])
sketch4.MapMode = "FlatFace"
sketch4.AttachmentOffset = App.Placement(App.Vector(0, 0, 2.5), App.Rotation())
sketch4.addGeometry([
    Part.LineSegment(App.Vector(130, 100, 0), App.Vector(130, 90, 0)),  # 0
    Part.LineSegment(App.Vector(130, 90, 0), App.Vector(135, 90, 0)),  # 1
    Part.LineSegment(App.Vector(135, 90, 0), App.Vector(135, 100, 0)),  # 2
    Part.LineSegment(App.Vector(135, 100, 0), App.Vector(130, 100, 0)),  # 3
    Part.LineSegment(App.Vector(130, 120, 0), App.Vector(130, 110, 0)),  # 4
    Part.LineSegment(App.Vector(130, 110, 0), App.Vector(135, 110, 0)),  # 5
    Part.LineSegment(App.Vector(135, 110, 0), App.Vector(135, 120, 0)),  # 6
    Part.LineSegment(App.Vector(135, 120, 0), App.Vector(130, 120, 0)),  # 7
], False)
sketch4.addConstraint([
    Sketcher.Constraint("Coincident", 0, 2, 1, 1),
    Sketcher.Constraint("Coincident", 1, 2, 2, 1),
    Sketcher.Constraint("Coincident", 2, 2, 3, 1),
    Sketcher.Constraint("Coincident", 3, 2, 0, 1),
    Sketcher.Constraint("Coincident", 4, 2, 5, 1),
    Sketcher.Constraint("Coincident", 5, 2, 6, 1),
    Sketcher.Constraint("Coincident", 6, 2, 7, 1),
    Sketcher.Constraint("Coincident", 7, 2, 4, 1),
    Sketcher.Constraint("Vertical", 0),
    Sketcher.Constraint("Horizontal", 1),
    Sketcher.Constraint("Vertical", 2),
    Sketcher.Constraint("Horizontal", 3),
    Sketcher.Constraint("Vertical", 4),
    Sketcher.Constraint("Horizontal", 5),
    Sketcher.Constraint("Vertical", 6),
    Sketcher.Constraint("Horizontal", 7),
    Sketcher.Constraint("Vertical", 3, 2, 4, 2),
    Sketcher.Constraint("Vertical", 2, 2, 5, 2),
    Sketcher.Constraint("Equal", 2, 4),
    Sketcher.Constraint("DistanceX", 1, 1, 1, 2, Q("5 mm")),
    Sketcher.Constraint("DistanceY", 0, 2, 0, 1, Q("10 mm")),
    Sketcher.Constraint("DistanceX", -1, 1, 0, 2, Q("130 mm")),
    Sketcher.Constraint("DistanceY", -1, 1, 0, 2, Q("90 mm")),
    Sketcher.Constraint("DistanceY", -1, 1, 4, 2, Q("110 mm")),
])
pocket3 = body.newObject("PartDesign::Pocket", "Pocket002")
pocket3.Profile = sketch4
pocket3.Type = "ThroughAll"

# Sketch on XY plane
sketch5 = body.newObject("Sketcher::SketchObject", "Sketch004")
sketch5.AttachmentSupport = (doc.getObject("XY_Plane"), [""])
sketch5.MapMode = "FlatFace"
sketch5.AttachmentOffset = App.Placement(App.Vector(0, 0, 2.5), App.Rotation())
sketch5.addGeometry([
    Part.LineSegment(App.Vector(5, 5, 0), App.Vector(5, 0, 0)),  # 0
    Part.LineSegment(App.Vector(5, 0, 0), App.Vector(15, 0, 0)),  # 1
    Part.LineSegment(App.Vector(15, 0, 0), App.Vector(15, 5, 0)),  # 2
    Part.LineSegment(App.Vector(15, 5, 0), App.Vector(5, 5, 0)),  # 3
    Part.LineSegment(App.Vector(25, 5, 0), App.Vector(25, 0, 0)),  # 4
    Part.LineSegment(App.Vector(25, 0, 0), App.Vector(35, 0, 0)),  # 5
    Part.LineSegment(App.Vector(35, 0, 0), App.Vector(35, 5, 0)),  # 6
    Part.LineSegment(App.Vector(35, 5, 0), App.Vector(25, 5, 0)),  # 7
    Part.LineSegment(App.Vector(45, 5, 0), App.Vector(45, 0, 0)),  # 8
    Part.LineSegment(App.Vector(45, 0, 0), App.Vector(55, 0, 0)),  # 9
    Part.LineSegment(App.Vector(55, 0, 0), App.Vector(55, 5, 0)),  # 10
    Part.LineSegment(App.Vector(55, 5, 0), App.Vector(45, 5, 0)),  # 11
    Part.LineSegment(App.Vector(65, 5, 0), App.Vector(65, 0, 0)),  # 12
    Part.LineSegment(App.Vector(65, 0, 0), App.Vector(75, 0, 0)),  # 13
    Part.LineSegment(App.Vector(75, 0, 0), App.Vector(75, 5, 0)),  # 14
    Part.LineSegment(App.Vector(75, 5, 0), App.Vector(65, 5, 0)),  # 15
    Part.LineSegment(App.Vector(85, 5, 0), App.Vector(85, 0, 0)),  # 16
    Part.LineSegment(App.Vector(85, 0, 0), App.Vector(95, 0, 0)),  # 17
    Part.LineSegment(App.Vector(95, 0, 0), App.Vector(95, 5, 0)),  # 18
    Part.LineSegment(App.Vector(95, 5, 0), App.Vector(85, 5, 0)),  # 19
    Part.LineSegment(App.Vector(105, 5, 0), App.Vector(105, 0, 0)),  # 20
    Part.LineSegment(App.Vector(105, 0, 0), App.Vector(115, 0, 0)),  # 21
    Part.LineSegment(App.Vector(115, 0, 0), App.Vector(115, 5, 0)),  # 22
    Part.LineSegment(App.Vector(115, 5, 0), App.Vector(105, 5, 0)),  # 23
], False)
sketch5.addConstraint([
    Sketcher.Constraint("Coincident", 0, 2, 1, 1),
    Sketcher.Constraint("Coincident", 1, 2, 2, 1),
    Sketcher.Constraint("Coincident", 2, 2, 3, 1),
    Sketcher.Constraint("Coincident", 3, 2, 0, 1),
    Sketcher.Constraint("Coincident", 4, 2, 5, 1),
    Sketcher.Constraint("Coincident", 5, 2, 6, 1),
    Sketcher.Constraint("Coincident", 6, 2, 7, 1),
    Sketcher.Constraint("Coincident", 7, 2, 4, 1),
    Sketcher.Constraint("Coincident", 8, 2, 9, 1),
    Sketcher.Constraint("Coincident", 9, 2, 10, 1),
    Sketcher.Constraint("Coincident", 10, 2, 11, 1),
    Sketcher.Constraint("Coincident", 11, 2, 8, 1),
    Sketcher.Constraint("Coincident", 12, 2, 13, 1),
    Sketcher.Constraint("Coincident", 13, 2, 14, 1),
    Sketcher.Constraint("Coincident", 14, 2, 15, 1),
    Sketcher.Constraint("Coincident", 15, 2, 12, 1),
    Sketcher.Constraint("Coincident", 16, 2, 17, 1),
    Sketcher.Constraint("Coincident", 17, 2, 18, 1),
    Sketcher.Constraint("Coincident", 18, 2, 19, 1),
    Sketcher.Constraint("Coincident", 19, 2, 16, 1),
    Sketcher.Constraint("Coincident", 20, 2, 21, 1),
    Sketcher.Constraint("Coincident", 21, 2, 22, 1),
    Sketcher.Constraint("Coincident", 22, 2, 23, 1),
    Sketcher.Constraint("Coincident", 23, 2, 20, 1),
    Sketcher.Constraint("Vertical", 0),
    Sketcher.Constraint("Horizontal", 1),
    Sketcher.Constraint("Vertical", 2),
    Sketcher.Constraint("Horizontal", 3),
    Sketcher.Constraint("Vertical", 4),
    Sketcher.Constraint("Horizontal", 5),
    Sketcher.Constraint("Vertical", 6),
    Sketcher.Constraint("Horizontal", 7),
    Sketcher.Constraint("Vertical", 8),
    Sketcher.Constraint("Horizontal", 9),
    Sketcher.Constraint("Vertical", 10),
    Sketcher.Constraint("Horizontal", 11),
    Sketcher.Constraint("Vertical", 12),
    Sketcher.Constraint("Horizontal", 13),
    Sketcher.Constraint("Vertical", 14),
    Sketcher.Constraint("Horizontal", 15),
    Sketcher.Constraint("Vertical", 16),
    Sketcher.Constraint("Horizontal", 17),
    Sketcher.Constraint("Vertical", 18),
    Sketcher.Constraint("Horizontal", 19),
    Sketcher.Constraint("Vertical", 20),
    Sketcher.Constraint("Horizontal", 21),
    Sketcher.Constraint("Vertical", 22),
    Sketcher.Constraint("Horizontal", 23),
    Sketcher.Constraint("PointOnObject", 0, 2, -1),
    Sketcher.Constraint("PointOnObject", 4, 2, -1),
    Sketcher.Constraint("PointOnObject", 8, 2, -1),
    Sketcher.Constraint("PointOnObject", 12, 2, -1),
    Sketcher.Constraint("PointOnObject", 16, 2, -1),
    Sketcher.Constraint("PointOnObject", 20, 2, -1),
    Sketcher.Constraint("Horizontal", 3, 2, 6, 2),
    Sketcher.Constraint("Horizontal", 7, 2, 10, 2),
    Sketcher.Constraint("Horizontal", 11, 2, 14, 2),
    Sketcher.Constraint("Horizontal", 15, 2, 18, 2),
    Sketcher.Constraint("Horizontal", 19, 2, 22, 2),
    Sketcher.Constraint("Equal", 3, 5),
    Sketcher.Constraint("Equal", 7, 9),
    Sketcher.Constraint("Equal", 11, 13),
    Sketcher.Constraint("Equal", 15, 17),
    Sketcher.Constraint("Equal", 19, 21),
    Sketcher.Constraint("DistanceX", 1, 1, 1, 2, Q("10 mm")),
    Sketcher.Constraint("DistanceY", 0, 2, 0, 1, Q("5 mm")),
    Sketcher.Constraint("DistanceX", -1, 1, 0, 2, Q("5 mm")),
    Sketcher.Constraint("DistanceX", -1, 1, 4, 2, Q("25 mm")),
    Sketcher.Constraint("DistanceX", -1, 1, 8, 2, Q("45 mm")),
    Sketcher.Constraint("DistanceX", -1, 1, 12, 2, Q("65 mm")),
    Sketcher.Constraint("DistanceX", -1, 1, 16, 2, Q("85 mm")),
    Sketcher.Constraint("DistanceX", -1, 1, 20, 2, Q("105 mm")),
])
pocket4 = body.newObject("PartDesign::Pocket", "Pocket003")
pocket4.Profile = sketch5
pocket4.Type = "ThroughAll"

# Sketch on XY plane
sketch6 = body.newObject("Sketcher::SketchObject", "Sketch005")
sketch6.AttachmentSupport = (doc.getObject("XY_Plane"), [""])
sketch6.MapMode = "FlatFace"
sketch6.AttachmentOffset = App.Placement(App.Vector(0, 0, 2.5), App.Rotation())
sketch6.addGeometry([
    Part.Circle(App.Vector(20, 110, 0), App.Vector(0, 0, 1), 2.5),
    Part.Circle(App.Vector(20, 20, 0), App.Vector(0, 0, 1), 2.5),
], False)
sketch6.addConstraint([
    Sketcher.Constraint("Equal", 0, 1),
    Sketcher.Constraint("Vertical", 0, 3, 1, 3),
    Sketcher.Constraint("Diameter", 0, Q("5 mm")),
    Sketcher.Constraint("DistanceX", -1, 1, 0, 3, Q("20 mm")),
    Sketcher.Constraint("DistanceY", -1, 1, 0, 3, Q("110 mm")),
    Sketcher.Constraint("DistanceY", -1, 1, 1, 3, Q("20 mm")),
])
pocket5 = body.newObject("PartDesign::Pocket", "Pocket004")
pocket5.Profile = sketch6
pocket5.Type = "ThroughAll"

# Sketch on XY plane
sketch7 = body.newObject("Sketcher::SketchObject", "Sketch006")
sketch7.AttachmentSupport = (doc.getObject("XY_Plane"), [""])
sketch7.MapMode = "FlatFace"
sketch7.AttachmentOffset = App.Placement(App.Vector(0, 0, 2.5), App.Rotation())
sketch7.addGeometry([
    Part.Circle(App.Vector(230, 93.2, 0), App.Vector(0, 0, 1), 2.5),
    Part.Circle(App.Vector(242, 93.2, 0), App.Vector(0, 0, 1), 2.5),
], False)
sketch7.addConstraint([
    Sketcher.Constraint("Equal", 0, 1),
    Sketcher.Constraint("Horizontal", 0, 3, 1, 3),
    Sketcher.Constraint("Diameter", 0, Q("5 mm")),
    Sketcher.Constraint("DistanceX", -1, 1, 0, 3, Q("230 mm")),
    Sketcher.Constraint("DistanceX", -1, 1, 1, 3, Q("242 mm")),
    Sketcher.Constraint("DistanceY", -1, 1, 0, 3, Q("93.2 mm")),
])
pocket6 = body.newObject("PartDesign::Pocket", "Pocket005")
pocket6.Profile = sketch7
pocket6.Type = "ThroughAll"

doc.recompute()
